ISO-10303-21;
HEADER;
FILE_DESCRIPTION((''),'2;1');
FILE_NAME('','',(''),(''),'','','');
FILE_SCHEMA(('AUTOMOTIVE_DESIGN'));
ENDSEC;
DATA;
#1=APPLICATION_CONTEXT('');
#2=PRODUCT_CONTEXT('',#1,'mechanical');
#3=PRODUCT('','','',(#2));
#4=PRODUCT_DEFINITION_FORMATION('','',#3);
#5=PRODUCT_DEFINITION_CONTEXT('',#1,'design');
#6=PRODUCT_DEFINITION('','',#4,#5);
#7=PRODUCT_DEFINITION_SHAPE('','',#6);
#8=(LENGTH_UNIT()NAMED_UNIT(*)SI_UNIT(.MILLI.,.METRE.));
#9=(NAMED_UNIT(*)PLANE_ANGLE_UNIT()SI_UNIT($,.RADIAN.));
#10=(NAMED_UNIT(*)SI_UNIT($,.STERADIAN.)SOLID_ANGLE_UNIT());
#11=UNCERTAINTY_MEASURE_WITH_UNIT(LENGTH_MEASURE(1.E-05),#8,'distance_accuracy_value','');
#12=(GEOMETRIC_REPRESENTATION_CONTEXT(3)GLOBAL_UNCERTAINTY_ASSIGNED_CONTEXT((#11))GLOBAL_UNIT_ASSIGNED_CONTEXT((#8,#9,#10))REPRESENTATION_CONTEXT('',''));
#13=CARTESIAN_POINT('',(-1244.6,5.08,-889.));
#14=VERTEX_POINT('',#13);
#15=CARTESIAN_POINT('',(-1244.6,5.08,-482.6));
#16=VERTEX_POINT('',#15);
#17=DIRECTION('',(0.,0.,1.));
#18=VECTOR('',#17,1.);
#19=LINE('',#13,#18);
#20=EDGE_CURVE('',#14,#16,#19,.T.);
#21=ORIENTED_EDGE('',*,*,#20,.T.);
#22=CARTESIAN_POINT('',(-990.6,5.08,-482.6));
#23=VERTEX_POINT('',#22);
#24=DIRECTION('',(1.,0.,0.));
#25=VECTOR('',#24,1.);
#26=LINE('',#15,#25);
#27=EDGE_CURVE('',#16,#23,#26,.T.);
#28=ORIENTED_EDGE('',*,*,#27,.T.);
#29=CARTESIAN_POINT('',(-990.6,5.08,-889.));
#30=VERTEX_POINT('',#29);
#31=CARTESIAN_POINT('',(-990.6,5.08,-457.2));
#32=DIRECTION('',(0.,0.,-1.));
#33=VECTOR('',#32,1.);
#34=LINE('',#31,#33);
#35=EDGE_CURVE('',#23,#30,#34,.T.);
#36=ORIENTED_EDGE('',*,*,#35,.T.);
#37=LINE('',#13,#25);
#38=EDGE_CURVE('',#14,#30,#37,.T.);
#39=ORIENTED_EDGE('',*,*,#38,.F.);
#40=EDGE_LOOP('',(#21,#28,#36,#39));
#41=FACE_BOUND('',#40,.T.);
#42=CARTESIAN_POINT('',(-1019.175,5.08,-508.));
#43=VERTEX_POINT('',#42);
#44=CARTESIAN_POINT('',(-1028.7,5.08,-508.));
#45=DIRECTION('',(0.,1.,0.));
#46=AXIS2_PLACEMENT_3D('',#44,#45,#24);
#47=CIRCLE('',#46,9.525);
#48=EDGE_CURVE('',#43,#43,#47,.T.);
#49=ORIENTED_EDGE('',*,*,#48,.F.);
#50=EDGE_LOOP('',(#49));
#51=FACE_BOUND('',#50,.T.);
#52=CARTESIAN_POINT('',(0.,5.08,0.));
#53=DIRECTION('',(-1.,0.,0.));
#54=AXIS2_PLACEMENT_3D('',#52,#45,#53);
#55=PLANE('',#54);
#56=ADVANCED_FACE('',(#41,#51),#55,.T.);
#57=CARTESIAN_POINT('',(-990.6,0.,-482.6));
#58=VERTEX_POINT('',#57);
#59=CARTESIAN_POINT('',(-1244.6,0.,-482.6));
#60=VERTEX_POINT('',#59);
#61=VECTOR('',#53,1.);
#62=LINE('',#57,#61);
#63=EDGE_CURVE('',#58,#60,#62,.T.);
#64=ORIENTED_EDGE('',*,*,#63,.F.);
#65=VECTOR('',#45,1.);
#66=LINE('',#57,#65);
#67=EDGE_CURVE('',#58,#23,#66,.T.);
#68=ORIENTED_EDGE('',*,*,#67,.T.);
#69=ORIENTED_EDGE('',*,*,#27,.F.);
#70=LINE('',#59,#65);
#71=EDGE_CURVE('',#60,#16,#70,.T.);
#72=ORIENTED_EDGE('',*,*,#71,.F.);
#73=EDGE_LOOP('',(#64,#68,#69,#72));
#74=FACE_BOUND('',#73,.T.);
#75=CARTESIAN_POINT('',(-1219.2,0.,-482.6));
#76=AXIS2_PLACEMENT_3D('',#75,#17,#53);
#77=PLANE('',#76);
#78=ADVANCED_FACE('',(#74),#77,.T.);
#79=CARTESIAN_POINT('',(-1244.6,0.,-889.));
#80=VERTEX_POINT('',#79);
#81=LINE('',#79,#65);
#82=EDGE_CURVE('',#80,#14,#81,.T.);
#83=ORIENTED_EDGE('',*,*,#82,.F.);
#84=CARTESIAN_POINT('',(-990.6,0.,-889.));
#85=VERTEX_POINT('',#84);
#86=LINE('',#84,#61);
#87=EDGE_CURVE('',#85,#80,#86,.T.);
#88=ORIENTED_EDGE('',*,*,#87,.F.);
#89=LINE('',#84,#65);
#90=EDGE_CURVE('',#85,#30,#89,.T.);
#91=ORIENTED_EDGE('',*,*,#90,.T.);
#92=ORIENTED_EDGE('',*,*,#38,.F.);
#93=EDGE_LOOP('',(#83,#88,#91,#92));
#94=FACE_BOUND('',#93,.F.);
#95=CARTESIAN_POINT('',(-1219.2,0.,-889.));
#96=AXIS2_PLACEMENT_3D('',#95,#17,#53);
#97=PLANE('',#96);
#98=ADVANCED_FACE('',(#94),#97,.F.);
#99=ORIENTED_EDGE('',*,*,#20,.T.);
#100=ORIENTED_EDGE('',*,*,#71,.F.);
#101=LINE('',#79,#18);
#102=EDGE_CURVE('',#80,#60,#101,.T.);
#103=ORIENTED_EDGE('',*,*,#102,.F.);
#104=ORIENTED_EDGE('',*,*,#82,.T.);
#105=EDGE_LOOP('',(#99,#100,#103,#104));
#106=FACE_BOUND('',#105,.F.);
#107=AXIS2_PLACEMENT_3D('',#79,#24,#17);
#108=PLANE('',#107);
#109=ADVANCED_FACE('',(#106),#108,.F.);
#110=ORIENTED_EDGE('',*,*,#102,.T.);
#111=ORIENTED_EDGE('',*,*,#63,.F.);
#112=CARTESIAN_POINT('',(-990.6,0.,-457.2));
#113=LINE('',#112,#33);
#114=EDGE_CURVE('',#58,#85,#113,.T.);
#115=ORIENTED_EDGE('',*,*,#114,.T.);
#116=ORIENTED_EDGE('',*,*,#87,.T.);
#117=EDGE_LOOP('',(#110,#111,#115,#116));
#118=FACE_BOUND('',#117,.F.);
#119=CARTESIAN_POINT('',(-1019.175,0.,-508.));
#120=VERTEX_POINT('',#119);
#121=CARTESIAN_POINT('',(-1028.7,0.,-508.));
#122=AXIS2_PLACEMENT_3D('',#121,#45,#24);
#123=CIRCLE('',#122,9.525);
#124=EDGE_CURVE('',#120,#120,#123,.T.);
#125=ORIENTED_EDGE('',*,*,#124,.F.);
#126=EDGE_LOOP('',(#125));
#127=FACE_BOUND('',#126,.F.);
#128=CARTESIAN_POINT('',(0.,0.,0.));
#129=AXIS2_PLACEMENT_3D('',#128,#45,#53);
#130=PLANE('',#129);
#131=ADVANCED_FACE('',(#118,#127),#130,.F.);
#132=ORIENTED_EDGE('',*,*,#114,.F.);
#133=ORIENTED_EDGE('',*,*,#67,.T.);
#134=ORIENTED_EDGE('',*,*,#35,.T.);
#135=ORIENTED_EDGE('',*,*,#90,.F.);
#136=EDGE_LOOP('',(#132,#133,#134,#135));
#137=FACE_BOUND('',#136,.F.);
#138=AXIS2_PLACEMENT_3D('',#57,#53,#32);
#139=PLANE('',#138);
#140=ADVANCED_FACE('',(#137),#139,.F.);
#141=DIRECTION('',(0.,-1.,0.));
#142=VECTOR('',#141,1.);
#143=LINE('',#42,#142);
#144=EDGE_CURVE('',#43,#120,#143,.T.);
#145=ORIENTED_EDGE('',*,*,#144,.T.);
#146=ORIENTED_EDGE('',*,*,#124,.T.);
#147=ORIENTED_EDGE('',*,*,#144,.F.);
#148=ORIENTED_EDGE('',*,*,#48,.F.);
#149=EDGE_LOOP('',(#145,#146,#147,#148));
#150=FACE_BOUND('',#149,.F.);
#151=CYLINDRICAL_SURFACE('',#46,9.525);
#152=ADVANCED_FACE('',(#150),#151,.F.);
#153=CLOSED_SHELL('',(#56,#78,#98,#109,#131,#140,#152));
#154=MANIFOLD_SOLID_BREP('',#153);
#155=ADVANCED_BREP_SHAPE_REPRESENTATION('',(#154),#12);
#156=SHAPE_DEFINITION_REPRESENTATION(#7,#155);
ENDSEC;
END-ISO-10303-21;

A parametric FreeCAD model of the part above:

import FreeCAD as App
import Part
import Sketcher
Q = App.Units.Quantity

doc = App.newDocument("Part")
body = doc.addObject("PartDesign::Body", "Body")

# Sketch on XZ plane
sketch1 = body.newObject("Sketcher::SketchObject", "Sketch")
sketch1.AttachmentSupport = (doc.getObject("XZ_Plane"), [""])
sketch1.MapMode = "FlatFace"
sketch1.addGeometry([
    Part.LineSegment(App.Vector(-1244.6, -889, 0), App.Vector(-1244.6, -482.6, 0)),
    Part.LineSegment(App.Vector(-1244.6, -482.6, 0), App.Vector(-990.6, -482.6, 0)),
    Part.LineSegment(App.Vector(-990.6, -482.6, 0), App.Vector(-990.6, -889, 0)),
    Part.LineSegment(App.Vector(-990.6, -889, 0), App.Vector(-1244.6, -889, 0)),
], False)
sketch1.addConstraint([
    Sketcher.Constraint("Coincident", 0, 2, 1, 1),
    Sketcher.Constraint("Coincident", 1, 2, 2, 1),
    Sketcher.Constraint("Coincident", 2, 2, 3, 1),
    Sketcher.Constraint("Coincident", 3, 2, 0, 1),
    Sketcher.Constraint("Vertical", 0),
    Sketcher.Constraint("Horizontal", 1),
    Sketcher.Constraint("Vertical", 2),
    Sketcher.Constraint("Horizontal", 3),
    Sketcher.Constraint("DistanceY", 0, 1, 0, 2, Q("16 in")),
    Sketcher.Constraint("DistanceX", 1, 1, 1, 2, Q("10 in")),
    Sketcher.Constraint("DistanceX", 0, 2, -1, 1, Q("49 in")),
    Sketcher.Constraint("DistanceY", 0, 2, -1, 1, Q("19 in")),
])
pad1 = body.newObject("PartDesign::Pad", "Pad")
pad1.Profile = sketch1
pad1.Length = Q("0.2 in")
pad1.Reversed = True

# Sketch on XZ plane
sketch2 = body.newObject("Sketcher::SketchObject", "Sketch001")
sketch2.AttachmentSupport = (doc.getObject("XZ_Plane"), [""])
sketch2.MapMode = "FlatFace"
sketch2.AttachmentOffset = App.Placement(App.Vector(0, 0, -0.2 * 25.4), App.Rotation())
sketch2.addGeometry(Part.Circle(App.Vector(-1028.7, -508, 0), App.Vector(0, 0, 1), 9.525), False)
sketch2.addConstraint([
    Sketcher.Constraint("Diameter", 0, Q("0.75 in")),
    Sketcher.Constraint("DistanceY", 0, 3, -1, 1, Q("20 in")),
    Sketcher.Constraint("DistanceX", 0, 3, -1, 1, Q("40.5 in")),
])
pocket1 = body.newObject("PartDesign::Pocket", "Pocket")
pocket1.Profile = sketch2
pocket1.Length = Q("1 in")
pocket1.Reversed = True

doc.recompute()
